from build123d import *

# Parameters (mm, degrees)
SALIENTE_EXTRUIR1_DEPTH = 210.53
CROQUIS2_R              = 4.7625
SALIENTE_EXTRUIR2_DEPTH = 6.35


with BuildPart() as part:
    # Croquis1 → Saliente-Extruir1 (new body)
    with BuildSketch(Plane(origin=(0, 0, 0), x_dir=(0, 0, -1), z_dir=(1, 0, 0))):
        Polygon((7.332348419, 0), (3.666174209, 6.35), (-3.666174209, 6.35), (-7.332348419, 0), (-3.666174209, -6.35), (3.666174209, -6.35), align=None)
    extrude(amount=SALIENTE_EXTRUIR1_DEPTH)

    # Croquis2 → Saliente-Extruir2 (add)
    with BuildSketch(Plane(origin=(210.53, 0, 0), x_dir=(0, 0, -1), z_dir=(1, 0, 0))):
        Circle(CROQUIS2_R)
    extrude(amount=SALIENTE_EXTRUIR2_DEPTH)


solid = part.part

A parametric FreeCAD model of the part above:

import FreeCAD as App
import Part
import Sketcher

V = App.Vector
Q = App.Units.Quantity

doc = App.newDocument("Part")
body = doc.addObject("PartDesign::Body", "Body")

# Sketch on YZ plane
sketch1 = body.newObject("Sketcher::SketchObject", "Sketch")
sketch1.AttachmentSupport = (doc.getObject("YZ_Plane"), [""])
sketch1.MapMode = "FlatFace"
sketch1.addGeometry([
    Part.LineSegment(V(0, -7, 0), V(6, -4, 0)),  # 0
    Part.LineSegment(V(6, -4, 0), V(6, 4, 0)),  # 1
    Part.LineSegment(V(6, 4, 0), V(0, 7, 0)),  # 2
    Part.LineSegment(V(0, 7, 0), V(-6, 4, 0)),  # 3
    Part.LineSegment(V(-6, 4, 0), V(-6, -4, 0)),  # 4
    Part.LineSegment(V(-6, -4, 0), V(0, -7, 0)),  # 5
], False)
sketch1.addConstraint([
    Sketcher.Constraint("Coincident", 0, 2, 1, 1),
    Sketcher.Constraint("Coincident", 1, 2, 2, 1),
    Sketcher.Constraint("Coincident", 2, 2, 3, 1),
    Sketcher.Constraint("Coincident", 3, 2, 4, 1),
    Sketcher.Constraint("Coincident", 4, 2, 5, 1),
    Sketcher.Constraint("Coincident", 5, 2, 0, 1),
    Sketcher.Constraint("Vertical", 1),
    Sketcher.Constraint("Vertical", 4),
    Sketcher.Constraint("Symmetric", 0, 2, 3, 2, -1, 1),
    Sketcher.Constraint("Symmetric", 2, 2, 5, 2, -1, 1),
    Sketcher.Constraint("PointOnObject", 2, 2, -2),
    Sketcher.Constraint("Parallel", 2, 5),
    Sketcher.Constraint("Horizontal", 1, 2, 3, 2),
    Sketcher.Constraint("Angle", 0, Q("30 deg")),
    Sketcher.Constraint("DistanceX", 3, 2, 1, 2, Q("0.5 in")),
    Sketcher.Constraint("DistanceY", 1, 1, 1, 2, Q("7.332348 mm")),
])
pad1 = body.newObject("PartDesign::Pad", "Pad")
pad1.Profile = sketch1
pad1.Length = 210.53

# Sketch on YZ plane
sketch2 = body.newObject("Sketcher::SketchObject", "Sketch001")
sketch2.AttachmentSupport = (doc.getObject("YZ_Plane"), [""])
sketch2.MapMode = "FlatFace"
sketch2.AttachmentOffset = App.Placement(V(0, 0, 210.53), App.Rotation())
sketch2.addGeometry(Part.Circle(V(0, 0, 0), V(0, 0, 1), 4.8), False)
sketch2.addConstraint([
    Sketcher.Constraint("Coincident", 0, 3, -1, 1),
    Sketcher.Constraint("Diameter", 0, Q("0.375 in")),
])
pad2 = body.newObject("PartDesign::Pad", "Pad001")
pad2.Profile = sketch2
pad2.Length = Q("0.25 in")

doc.recompute()
